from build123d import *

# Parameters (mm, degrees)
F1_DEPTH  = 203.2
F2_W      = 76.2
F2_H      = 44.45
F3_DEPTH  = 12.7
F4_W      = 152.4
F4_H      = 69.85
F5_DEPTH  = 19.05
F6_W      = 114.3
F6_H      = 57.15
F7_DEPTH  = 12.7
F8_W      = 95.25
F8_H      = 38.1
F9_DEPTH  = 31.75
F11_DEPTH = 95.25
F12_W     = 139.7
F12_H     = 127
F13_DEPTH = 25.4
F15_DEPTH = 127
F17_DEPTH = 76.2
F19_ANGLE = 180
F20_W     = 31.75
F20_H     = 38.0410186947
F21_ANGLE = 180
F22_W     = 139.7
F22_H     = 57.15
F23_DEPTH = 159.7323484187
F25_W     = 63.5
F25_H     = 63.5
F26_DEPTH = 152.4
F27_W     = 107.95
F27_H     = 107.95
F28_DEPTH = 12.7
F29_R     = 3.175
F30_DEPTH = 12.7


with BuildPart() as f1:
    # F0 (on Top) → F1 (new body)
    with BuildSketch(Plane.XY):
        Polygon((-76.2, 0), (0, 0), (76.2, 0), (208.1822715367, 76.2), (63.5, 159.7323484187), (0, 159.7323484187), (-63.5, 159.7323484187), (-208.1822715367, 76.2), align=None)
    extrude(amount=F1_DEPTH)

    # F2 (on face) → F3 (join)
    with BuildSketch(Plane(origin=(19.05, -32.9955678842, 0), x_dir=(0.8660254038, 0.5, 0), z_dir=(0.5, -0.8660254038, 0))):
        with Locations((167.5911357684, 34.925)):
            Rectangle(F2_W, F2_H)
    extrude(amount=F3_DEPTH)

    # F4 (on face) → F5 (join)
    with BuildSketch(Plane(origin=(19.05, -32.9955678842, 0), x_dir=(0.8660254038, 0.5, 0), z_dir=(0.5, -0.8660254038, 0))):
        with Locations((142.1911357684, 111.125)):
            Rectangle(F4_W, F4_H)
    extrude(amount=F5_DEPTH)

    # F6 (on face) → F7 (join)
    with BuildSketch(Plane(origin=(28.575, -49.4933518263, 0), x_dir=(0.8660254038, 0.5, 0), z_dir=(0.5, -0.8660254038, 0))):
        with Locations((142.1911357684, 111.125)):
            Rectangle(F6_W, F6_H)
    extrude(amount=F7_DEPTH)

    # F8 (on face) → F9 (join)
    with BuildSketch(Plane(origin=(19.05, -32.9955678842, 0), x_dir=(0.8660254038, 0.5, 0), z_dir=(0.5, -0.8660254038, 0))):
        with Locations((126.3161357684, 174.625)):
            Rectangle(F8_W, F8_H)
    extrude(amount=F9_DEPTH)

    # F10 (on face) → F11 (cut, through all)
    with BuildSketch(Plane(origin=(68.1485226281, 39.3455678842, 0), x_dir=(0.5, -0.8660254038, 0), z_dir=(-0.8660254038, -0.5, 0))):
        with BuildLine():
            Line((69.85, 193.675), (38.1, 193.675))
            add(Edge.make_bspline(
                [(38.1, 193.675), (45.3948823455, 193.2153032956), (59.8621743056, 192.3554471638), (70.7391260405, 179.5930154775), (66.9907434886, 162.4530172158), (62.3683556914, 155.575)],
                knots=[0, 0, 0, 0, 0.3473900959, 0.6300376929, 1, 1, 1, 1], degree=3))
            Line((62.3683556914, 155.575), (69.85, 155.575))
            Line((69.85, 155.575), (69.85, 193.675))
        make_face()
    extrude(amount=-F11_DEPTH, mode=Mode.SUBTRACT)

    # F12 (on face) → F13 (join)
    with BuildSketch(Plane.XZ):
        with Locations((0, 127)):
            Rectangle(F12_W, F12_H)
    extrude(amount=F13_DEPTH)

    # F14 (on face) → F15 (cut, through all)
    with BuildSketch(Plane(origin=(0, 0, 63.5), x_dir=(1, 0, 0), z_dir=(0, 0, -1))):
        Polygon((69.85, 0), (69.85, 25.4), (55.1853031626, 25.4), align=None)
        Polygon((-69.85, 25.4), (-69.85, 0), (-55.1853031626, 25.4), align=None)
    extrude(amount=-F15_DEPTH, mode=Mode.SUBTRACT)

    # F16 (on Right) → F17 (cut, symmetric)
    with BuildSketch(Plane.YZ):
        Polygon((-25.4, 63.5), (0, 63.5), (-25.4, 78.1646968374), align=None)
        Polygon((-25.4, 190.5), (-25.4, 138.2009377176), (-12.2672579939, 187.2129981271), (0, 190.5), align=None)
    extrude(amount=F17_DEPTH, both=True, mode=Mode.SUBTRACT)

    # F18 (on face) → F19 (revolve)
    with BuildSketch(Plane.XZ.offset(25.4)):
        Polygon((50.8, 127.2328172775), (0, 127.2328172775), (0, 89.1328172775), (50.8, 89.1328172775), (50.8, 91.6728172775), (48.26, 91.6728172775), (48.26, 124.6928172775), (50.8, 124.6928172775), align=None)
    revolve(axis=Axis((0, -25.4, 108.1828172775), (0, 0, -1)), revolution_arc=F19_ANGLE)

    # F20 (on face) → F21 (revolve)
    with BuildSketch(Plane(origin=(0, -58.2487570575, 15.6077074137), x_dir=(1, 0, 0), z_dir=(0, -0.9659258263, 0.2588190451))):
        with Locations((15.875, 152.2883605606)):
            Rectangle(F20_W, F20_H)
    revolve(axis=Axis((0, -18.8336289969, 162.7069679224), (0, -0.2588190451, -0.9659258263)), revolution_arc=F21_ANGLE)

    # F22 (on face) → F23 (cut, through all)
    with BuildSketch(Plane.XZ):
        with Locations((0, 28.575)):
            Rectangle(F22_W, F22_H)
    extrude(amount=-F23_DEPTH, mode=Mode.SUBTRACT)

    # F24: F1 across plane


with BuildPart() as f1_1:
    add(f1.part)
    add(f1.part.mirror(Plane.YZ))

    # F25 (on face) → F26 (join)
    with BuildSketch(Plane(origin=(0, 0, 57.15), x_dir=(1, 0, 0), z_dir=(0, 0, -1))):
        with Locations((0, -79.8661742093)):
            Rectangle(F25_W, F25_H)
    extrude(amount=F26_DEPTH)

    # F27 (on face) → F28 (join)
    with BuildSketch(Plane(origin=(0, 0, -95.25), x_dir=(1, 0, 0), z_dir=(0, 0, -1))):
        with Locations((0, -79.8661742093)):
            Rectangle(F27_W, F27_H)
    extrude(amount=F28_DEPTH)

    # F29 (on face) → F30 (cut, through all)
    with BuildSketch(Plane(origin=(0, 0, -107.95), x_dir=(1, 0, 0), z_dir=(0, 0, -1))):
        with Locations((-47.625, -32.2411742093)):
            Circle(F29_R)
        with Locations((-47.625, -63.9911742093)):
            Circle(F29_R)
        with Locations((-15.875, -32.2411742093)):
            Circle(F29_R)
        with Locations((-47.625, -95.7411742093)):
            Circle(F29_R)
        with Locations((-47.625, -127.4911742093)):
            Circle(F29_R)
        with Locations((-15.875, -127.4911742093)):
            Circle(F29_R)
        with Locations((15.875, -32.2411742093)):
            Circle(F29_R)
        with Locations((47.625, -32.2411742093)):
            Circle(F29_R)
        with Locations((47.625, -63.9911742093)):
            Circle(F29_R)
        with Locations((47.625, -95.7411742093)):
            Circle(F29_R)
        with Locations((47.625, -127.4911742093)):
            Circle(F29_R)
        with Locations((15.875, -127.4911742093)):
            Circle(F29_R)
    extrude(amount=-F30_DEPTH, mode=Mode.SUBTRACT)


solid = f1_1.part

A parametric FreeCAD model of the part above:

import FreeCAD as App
import Part
import Sketcher

V = App.Vector
Q = App.Units.Quantity


def add_polygon(sketch, points):
    """Adds a closed chain of lines whose ends are joined by coincident constraints."""
    first, n = sketch.GeometryCount, len(points)
    for a, b in zip(points, points[1:] + points[:1]):
        sketch.addGeometry(Part.LineSegment(App.Vector(*a, 0), App.Vector(*b, 0)), False)
    for i in range(n):
        sketch.addConstraint(Sketcher.Constraint("Coincident", first + i, 2, first + (i + 1) % n, 1))

doc = App.newDocument("Part")
body = doc.addObject("PartDesign::Body", "Body")

# Sketch on XY plane
sketch1 = doc.addObject("Sketcher::SketchObject", "Sketch")
body.addObject(sketch1)
sketch1.AttachmentSupport = (doc.XY_Plane, [""])
sketch1.MapMode = "FlatFace"
add_polygon(sketch1, [(-76, 0), (76, 0), (208, 76), (64, 160), (-64, 160), (-208, 76)])  # lines 0-5
sketch1.addConstraint([
    Sketcher.Constraint("Horizontal", 0),
    Sketcher.Constraint("Horizontal", 3),
    Sketcher.Constraint("Symmetric", 0, 2, 5, 2, -1, 1),
    Sketcher.Constraint("Symmetric", 1, 2, 4, 2, -2),
    Sketcher.Constraint("Parallel", 1, 4),
    Sketcher.Constraint("Parallel", 2, 5),
    Sketcher.Constraint("DistanceX", 0, 1, 0, 2, Q("6 in")),
    Sketcher.Constraint("DistanceX", 3, 2, 3, 1, Q("5 in")),
    Sketcher.Constraint("Distance", 1, Q("6 in")),
    Sketcher.Constraint("DistanceY", -1, 1, 1, 2, Q("3 in")),
])
pad1 = doc.addObject("PartDesign::Pad", "Pad")
body.addObject(pad1)
pad1.Profile = sketch1
pad1.Length = Q("8 in")

# Sketch on an angled plane
sketch2 = doc.addObject("Sketcher::SketchObject", "Sketch001")
body.addObject(sketch2)
sketch2.Placement = App.Placement(V(19.05, -32.995568, 0), App.Rotation(V(0.866025404, 0.5, 0), V(0, 0, 1), V(0.5, -0.866025404, 0), "ZXY"))
add_polygon(sketch2, [(129, 57), (129, 13), (206, 13), (206, 57)])  # lines 0-3
sketch2.addConstraint([
    Sketcher.Constraint("Vertical", 0),
    Sketcher.Constraint("Horizontal", 1),
    Sketcher.Constraint("Vertical", 2),
    Sketcher.Constraint("Horizontal", 3),
    Sketcher.Constraint("DistanceX", 1, 1, 1, 2, Q("3 in")),
    Sketcher.Constraint("DistanceY", 0, 2, 0, 1, Q("1.75 in")),
    Sketcher.Constraint("DistanceY", -1, 1, 0, 2, Q("0.5 in")),
    Sketcher.Constraint("DistanceX", -1, 1, 0, 2, Q("129.491136 mm")),
])
pad2 = doc.addObject("PartDesign::Pad", "Pad001")
body.addObject(pad2)
pad2.Profile = sketch2
pad2.Length = Q("0.5 in")

# Sketch on an angled plane
sketch3 = doc.addObject("Sketcher::SketchObject", "Sketch002")
body.addObject(sketch3)
sketch3.Placement = App.Placement(V(19.05, -32.995568, 0), App.Rotation(V(0.866025404, 0.5, 0), V(0, 0, 1), V(0.5, -0.866025404, 0), "ZXY"))
add_polygon(sketch3, [(66, 146), (66, 76), (218, 76), (218, 146)])  # lines 0-3
sketch3.addConstraint([
    Sketcher.Constraint("Vertical", 0),
    Sketcher.Constraint("Horizontal", 1),
    Sketcher.Constraint("Vertical", 2),
    Sketcher.Constraint("Horizontal", 3),
    Sketcher.Constraint("DistanceX", 1, 1, 1, 2, Q("6 in")),
    Sketcher.Constraint("DistanceY", -1, 1, 0, 2, Q("3 in")),
    Sketcher.Constraint("DistanceY", 0, 2, 0, 1, Q("2.75 in")),
    Sketcher.Constraint("DistanceX", -1, 1, 0, 2, Q("65.991136 mm")),
])
pad3 = doc.addObject("PartDesign::Pad", "Pad002")
body.addObject(pad3)
pad3.Profile = sketch3
pad3.Length = Q("0.75 in")

# Sketch on an angled plane
sketch4 = doc.addObject("Sketcher::SketchObject", "Sketch003")
body.addObject(sketch4)
sketch4.Placement = App.Placement(V(28.575, -49.493352, 0), App.Rotation(V(0.866025404, 0.5, 0), V(0, 0, 1), V(0.5, -0.866025404, 0), "ZXY"))
add_polygon(sketch4, [(85, 140), (85, 83), (199, 83), (199, 140)])  # lines 0-3
sketch4.addConstraint([
    Sketcher.Constraint("Vertical", 0),
    Sketcher.Constraint("Horizontal", 1),
    Sketcher.Constraint("Vertical", 2),
    Sketcher.Constraint("Horizontal", 3),
    Sketcher.Constraint("DistanceX", 1, 1, 1, 2, Q("4.5 in")),
    Sketcher.Constraint("DistanceY", 0, 2, 0, 1, Q("2.25 in")),
    Sketcher.Constraint("DistanceY", -1, 1, 2, 2, Q("5.5 in")),
    Sketcher.Constraint("DistanceX", -1, 1, 0, 2, Q("85.041136 mm")),
])
pad4 = doc.addObject("PartDesign::Pad", "Pad003")
body.addObject(pad4)
pad4.Profile = sketch4
pad4.Length = Q("0.5 in")

# Sketch on an angled plane
sketch5 = doc.addObject("Sketcher::SketchObject", "Sketch004")
body.addObject(sketch5)
sketch5.Placement = App.Placement(V(19.05, -32.995568, 0), App.Rotation(V(0.866025404, 0.5, 0), V(0, 0, 1), V(0.5, -0.866025404, 0), "ZXY"))
add_polygon(sketch5, [(79, 194), (79, 156), (174, 156), (174, 194)])  # lines 0-3
sketch5.addConstraint([
    Sketcher.Constraint("Vertical", 0),
    Sketcher.Constraint("Horizontal", 1),
    Sketcher.Constraint("Vertical", 2),
    Sketcher.Constraint("Horizontal", 3),
    Sketcher.Constraint("DistanceY", 0, 2, 0, 1, Q("1.5 in")),
    Sketcher.Constraint("DistanceX", 1, 1, 1, 2, Q("3.75 in")),
    Sketcher.Constraint("DistanceY", -1, 1, 0, 2, Q("6.125 in")),
    Sketcher.Constraint("DistanceX", -1, 1, 0, 2, Q("78.691136 mm")),
])
pad5 = doc.addObject("PartDesign::Pad", "Pad004")
body.addObject(pad5)
pad5.Profile = sketch5
pad5.Length = Q("1.25 in")

# Sketch on an angled plane
sketch6 = doc.addObject("Sketcher::SketchObject", "Sketch005")
body.addObject(sketch6)
sketch6.Placement = App.Placement(V(68.148523, 39.345568, 0), App.Rotation(V(0.5, -0.866025404, 0), V(0, 0, 1), V(-0.866025404, -0.5, 0), "ZXY"))
sketch6.addGeometry([
    Part.LineSegment(V(69.85, 193.675, 0), V(38.1, 193.675, 0)),
    Part.BSplineCurve([V(38.1, 193.675, 0), V(45.394882, 193.215303, 0), V(59.862174, 192.355447, 0), V(70.739126, 179.593016, 0), V(66.990744, 162.453017, 0), V(62.368356, 155.575, 0)], [4, 1, 1, 4], [0, 0.347390096, 0.630037693, 1], False, 3, [1, 1, 1, 1, 1, 1], False),
    Part.LineSegment(V(62.368356, 155.575, 0), V(69.85, 155.575, 0)),
    Part.LineSegment(V(69.85, 155.575, 0), V(69.85, 193.675, 0)),
], False)
sketch6.addConstraint([
    Sketcher.Constraint("Block", 1),
    Sketcher.Constraint("Coincident", 0, 2, 1, 1),
    Sketcher.Constraint("Coincident", 1, 2, 2, 1),
    Sketcher.Constraint("Coincident", 2, 2, 3, 1),
    Sketcher.Constraint("Coincident", 3, 2, 0, 1),
    Sketcher.Constraint("Horizontal", 0),
    Sketcher.Constraint("Horizontal", 2),
    Sketcher.Constraint("Vertical", 3),
    Sketcher.Constraint("DistanceX", 0, 2, 0, 1, Q("1.25 in")),
])
pocket1 = doc.addObject("PartDesign::Pocket", "Pocket")
body.addObject(pocket1)
pocket1.Profile = sketch6
pocket1.Type = "ThroughAll"

# Sketch on XZ plane
sketch7 = doc.addObject("Sketcher::SketchObject", "Sketch006")
body.addObject(sketch7)
sketch7.AttachmentSupport = (doc.XZ_Plane, [""])
sketch7.MapMode = "FlatFace"
add_polygon(sketch7, [(-70, 190), (-70, 64), (70, 64), (70, 190)])  # lines 0-3
sketch7.addConstraint([
    Sketcher.Constraint("Vertical", 0),
    Sketcher.Constraint("Horizontal", 1),
    Sketcher.Constraint("Vertical", 2),
    Sketcher.Constraint("Horizontal", 3),
    Sketcher.Constraint("DistanceY", 0, 2, 0, 1, Q("5 in")),
    Sketcher.Constraint("DistanceX", 1, 1, 1, 2, Q("5.5 in")),
    Sketcher.Constraint("DistanceY", -1, 1, 0, 2, Q("2.5 in")),
    Sketcher.Constraint("DistanceX", 0, 2, -1, 1, Q("2.75 in")),
])
pad6 = doc.addObject("PartDesign::Pad", "Pad005")
body.addObject(pad6)
pad6.Profile = sketch7
pad6.Length = Q("1 in")

# Sketch on XY plane
sketch8 = doc.addObject("Sketcher::SketchObject", "Sketch007")
body.addObject(sketch8)
sketch8.AttachmentSupport = (doc.XY_Plane, [""])
sketch8.MapMode = "FlatFace"
sketch8.AttachmentOffset = App.Placement(V(0, 0, 2.5 * 25.4), App.Rotation())
add_polygon(sketch8, [(70, 0), (70, -25), (55, -25)])  # lines 0-2
add_polygon(sketch8, [(-70, -25), (-70, 0), (-55, -25)])  # lines 3-5
sketch8.addConstraint([
    Sketcher.Constraint("Vertical", 0),
    Sketcher.Constraint("Horizontal", 1),
    Sketcher.Constraint("Vertical", 3),
    Sketcher.Constraint("Horizontal", 5),
    Sketcher.Constraint("Symmetric", 2, 2, 3, 2, -1, 1),
    Sketcher.Constraint("Symmetric", 1, 2, 4, 2, -2),
    Sketcher.Constraint("PointOnObject", 2, 2, -1),
    Sketcher.Constraint("DistanceY", 0, 2, 0, 1, Q("1 in")),
    Sketcher.Constraint("Angle", 2, Q("60 deg")),
    Sketcher.Constraint("DistanceX", 3, 2, 2, 2, Q("5.5 in")),
])
pocket2 = doc.addObject("PartDesign::Pocket", "Pocket001")
body.addObject(pocket2)
pocket2.Profile = sketch8
pocket2.Type = "ThroughAll"
pocket2.Reversed = True

# Sketch on YZ plane
sketch9 = doc.addObject("Sketcher::SketchObject", "Sketch008")
body.addObject(sketch9)
sketch9.AttachmentSupport = (doc.YZ_Plane, [""])
sketch9.MapMode = "FlatFace"
add_polygon(sketch9, [(-25, 64), (0, 64), (-25, 78)])  # lines 0-2
add_polygon(sketch9, [(-25, 190), (-25, 138), (-12, 187), (0, 190)])  # lines 3-6
sketch9.addConstraint([
    Sketcher.Constraint("Horizontal", 0),
    Sketcher.Constraint("Vertical", 2),
    Sketcher.Constraint("Vertical", 3),
    Sketcher.Constraint("Horizontal", 6),
    Sketcher.Constraint("PointOnObject", 0, 2, -2),
    Sketcher.Constraint("PointOnObject", 5, 2, -2),
    Sketcher.Constraint("Vertical", 2, 2, 3, 2),
    Sketcher.Constraint("DistanceX", 0, 1, 0, 2, Q("1 in")),
    Sketcher.Constraint("Angle", 1, Q("150 deg")),
    Sketcher.Constraint("Angle", 4, Q("75 deg")),
    Sketcher.Constraint("Angle", 5, Q("15 deg")),
    Sketcher.Constraint("DistanceY", 0, 2, 5, 2, Q("5 in")),
    Sketcher.Constraint("Distance", 5, Q("0.5 in")),
    Sketcher.Constraint("DistanceY", -1, 1, 0, 2, Q("2.5 in")),
])
pocket3 = doc.addObject("PartDesign::Pocket", "Pocket002")
body.addObject(pocket3)
pocket3.Profile = sketch9
pocket3.Length = Q("6 in")
pocket3.Midplane = True

# Sketch on XZ plane
sketch10 = doc.addObject("Sketcher::SketchObject", "Sketch009")
body.addObject(sketch10)
sketch10.AttachmentSupport = (doc.XZ_Plane, [""])
sketch10.MapMode = "FlatFace"
sketch10.AttachmentOffset = App.Placement(V(0, 0, 1 * 25.4), App.Rotation())
add_polygon(sketch10, [(50.8, 127.2), (0, 127.2), (0, 89.1), (50.8, 89.1), (50.8, 91.7), (48.3, 91.7), (48.3, 124.7), (50.8, 124.7)])  # lines 0-7
sketch10.addConstraint([
    Sketcher.Constraint("Horizontal", 0),
    Sketcher.Constraint("Vertical", 1),
    Sketcher.Constraint("Horizontal", 2),
    Sketcher.Constraint("Vertical", 3),
    Sketcher.Constraint("Horizontal", 4),
    Sketcher.Constraint("Vertical", 5),
    Sketcher.Constraint("Horizontal", 6),
    Sketcher.Constraint("Vertical", 7),
    Sketcher.Constraint("PointOnObject", 0, 2, -2),
    Sketcher.Constraint("Vertical", 3, 2, 6, 2),
    Sketcher.Constraint("Equal", 6, 3),
    Sketcher.Constraint("Equal", 3, 7),
    Sketcher.Constraint("DistanceX", 0, 2, 0, 1, Q("2 in")),
    Sketcher.Constraint("DistanceX", 4, 2, 4, 1, Q("0.1 in")),
    Sketcher.Constraint("DistanceY", 1, 2, 1, 1, Q("1.5 in")),
    Sketcher.Constraint("DistanceY", -1, 1, 0, 2, Q("127.232817 mm")),
])
revolution = doc.addObject("PartDesign::Revolution", "Revolution")
body.addObject(revolution)
revolution.Profile = sketch10
revolution.ReferenceAxis = (sketch10, ["V_Axis"])
revolution.Angle = 180
revolution.Reversed = True

# Sketch on an angled plane
sketch11 = doc.addObject("Sketcher::SketchObject", "Sketch010")
body.addObject(sketch11)
sketch11.Placement = App.Placement(V(0, -58.248757, 15.607707), App.Rotation(V(1, 0, 0), V(0, 0.258819045, 0.965925826), V(0, -0.965925826, 0.258819045), "ZXY"))
add_polygon(sketch11, [(0, 171), (0, 133), (32, 133), (32, 171)])  # lines 0-3
sketch11.addConstraint([
    Sketcher.Constraint("Vertical", 0),
    Sketcher.Constraint("Horizontal", 1),
    Sketcher.Constraint("Vertical", 2),
    Sketcher.Constraint("Horizontal", 3),
    Sketcher.Constraint("PointOnObject", 0, 2, -2),
    Sketcher.Constraint("DistanceX", 1, 1, 1, 2, Q("1.25 in")),
    Sketcher.Constraint("DistanceY", 0, 2, 0, 1, Q("38.041019 mm")),
    Sketcher.Constraint("DistanceY", -1, 1, 0, 2, Q("133.267851 mm")),
])
revolution2 = doc.addObject("PartDesign::Revolution", "Revolution001")
body.addObject(revolution2)
revolution2.Profile = sketch11
revolution2.ReferenceAxis = (sketch11, ["V_Axis"])
revolution2.Angle = 180
revolution2.Reversed = True

# Sketch on XZ plane
sketch12 = doc.addObject("Sketcher::SketchObject", "Sketch011")
body.addObject(sketch12)
sketch12.AttachmentSupport = (doc.XZ_Plane, [""])
sketch12.MapMode = "FlatFace"
add_polygon(sketch12, [(-70, 57), (-70, 0), (70, 0), (70, 57)])  # lines 0-3
sketch12.addConstraint([
    Sketcher.Constraint("Vertical", 0),
    Sketcher.Constraint("Horizontal", 1),
    Sketcher.Constraint("Vertical", 2),
    Sketcher.Constraint("Horizontal", 3),
    Sketcher.Constraint("Symmetric", 0, 2, 1, 2, -1, 1),
    Sketcher.Constraint("DistanceX", 1, 1, 1, 2, Q("5.5 in")),
    Sketcher.Constraint("DistanceY", 0, 2, 0, 1, Q("2.25 in")),
])
pocket4 = doc.addObject("PartDesign::Pocket", "Pocket003")
body.addObject(pocket4)
pocket4.Profile = sketch12
pocket4.Type = "ThroughAll"
body2 = doc.addObject("PartDesign::Body", "Body001")
doc.recompute()

body2.BaseFeature = body
doc.recompute()

mirroring = doc.addObject("Part::Mirroring", "Mirroring")
mirroring.Source = body
mirroring.Base = V(0, 0, 0)
mirroring.Normal = V(1, 0, 0)
body3 = doc.addObject("PartDesign::Body", "Body002")
body3.BaseFeature = mirroring
boolean = doc.addObject("PartDesign::Boolean", "Boolean")
body2.addObject(boolean)
boolean.Type = "Fuse"
boolean.addObjects([body3])
doc.recompute()

# Sketch on XY plane
sketch13 = doc.addObject("Sketcher::SketchObject", "Sketch012")
body2.addObject(sketch13)
sketch13.AttachmentSupport = (doc.getObject("XY_Plane001"), [""])
sketch13.MapMode = "FlatFace"
sketch13.AttachmentOffset = App.Placement(V(0, 0, 2.25 * 25.4), App.Rotation())
add_polygon(sketch13, [(-32, 48), (-32, 112), (32, 112), (32, 48)])  # lines 0-3
sketch13.addConstraint([
    Sketcher.Constraint("Vertical", 0),
    Sketcher.Constraint("Horizontal", 1),
    Sketcher.Constraint("Vertical", 2),
    Sketcher.Constraint("Horizontal", 3),
    Sketcher.Constraint("Equal", 3, 0),
    Sketcher.Constraint("DistanceX", 1, 1, 1, 2, Q("2.5 in")),
    Sketcher.Constraint("DistanceX", 0, 2, -1, 1, Q("1.25 in")),
    Sketcher.Constraint("DistanceY", -1, 1, 0, 2, Q("111.616174 mm")),
])
pad7 = doc.addObject("PartDesign::Pad", "Pad006")
body2.addObject(pad7)
pad7.Profile = sketch13
pad7.Length = Q("6 in")
pad7.Reversed = True

# Sketch on XY plane
sketch14 = doc.addObject("Sketcher::SketchObject", "Sketch013")
body2.addObject(sketch14)
sketch14.AttachmentSupport = (doc.getObject("XY_Plane001"), [""])
sketch14.MapMode = "FlatFace"
sketch14.AttachmentOffset = App.Placement(V(0, 0, -3.75 * 25.4), App.Rotation())
add_polygon(sketch14, [(-54, 26), (-54, 134), (54, 134), (54, 26)])  # lines 0-3
sketch14.addConstraint([
    Sketcher.Constraint("Vertical", 0),
    Sketcher.Constraint("Horizontal", 1),
    Sketcher.Constraint("Vertical", 2),
    Sketcher.Constraint("Horizontal", 3),
    Sketcher.Constraint("Equal", 3, 0),
    Sketcher.Constraint("DistanceX", 1, 1, 1, 2, Q("4.25 in")),
    Sketcher.Constraint("DistanceX", 0, 2, -1, 1, Q("2.125 in")),
    Sketcher.Constraint("DistanceY", -1, 1, 0, 2, Q("133.841174 mm")),
])
pad8 = doc.addObject("PartDesign::Pad", "Pad007")
body2.addObject(pad8)
pad8.Profile = sketch14
pad8.Length = Q("0.5 in")
pad8.Reversed = True

# Sketch on XY plane
sketch15 = doc.addObject("Sketcher::SketchObject", "Sketch014")
body2.addObject(sketch15)
sketch15.AttachmentSupport = (doc.getObject("XY_Plane001"), [""])
sketch15.MapMode = "FlatFace"
sketch15.AttachmentOffset = App.Placement(V(0, 0, -4.25 * 25.4), App.Rotation())
sketch15.addGeometry([
    Part.Circle(V(-47.6, 32.2, 0), V(0, 0, 1), 3.2),  # 0
    Part.Circle(V(-47.6, 64, 0), V(0, 0, 1), 3.2),  # 1
    Part.Circle(V(-15.9, 32.2, 0), V(0, 0, 1), 3.2),  # 2
    Part.Circle(V(-47.6, 95.7, 0), V(0, 0, 1), 3.2),  # 3
    Part.Circle(V(-47.6, 127.5, 0), V(0, 0, 1), 3.2),  # 4
    Part.Circle(V(-15.9, 127.5, 0), V(0, 0, 1), 3.2),  # 5
    Part.Circle(V(15.9, 32.2, 0), V(0, 0, 1), 3.2),  # 6
    Part.Circle(V(47.6, 32.2, 0), V(0, 0, 1), 3.2),  # 7
    Part.Circle(V(47.6, 64, 0), V(0, 0, 1), 3.2),  # 8
    Part.Circle(V(47.6, 95.7, 0), V(0, 0, 1), 3.2),  # 9
    Part.Circle(V(47.6, 127.5, 0), V(0, 0, 1), 3.2),  # 10
    Part.Circle(V(15.9, 127.5, 0), V(0, 0, 1), 3.2),  # 11
], False)
sketch15.addConstraint([
    Sketcher.Constraint("Equal", 0, 1),
    Sketcher.Constraint("Equal", 1, 2),
    Sketcher.Constraint("Equal", 2, 3),
    Sketcher.Constraint("Equal", 3, 4),
    Sketcher.Constraint("Equal", 4, 5),
    Sketcher.Constraint("Equal", 5, 6),
    Sketcher.Constraint("Equal", 6, 7),
    Sketcher.Constraint("Equal", 7, 8),
    Sketcher.Constraint("Equal", 8, 9),
    Sketcher.Constraint("Equal", 9, 10),
    Sketcher.Constraint("Equal", 10, 11),
    Sketcher.Constraint("Symmetric", 2, 3, 6, 3, -2),
    Sketcher.Constraint("Symmetric", 0, 3, 7, 3, -2),
    Sketcher.Constraint("Symmetric", 1, 3, 8, 3, -2),
    Sketcher.Constraint("Symmetric", 3, 3, 9, 3, -2),
    Sketcher.Constraint("Symmetric", 4, 3, 10, 3, -2),
    Sketcher.Constraint("Symmetric", 5, 3, 11, 3, -2),
    Sketcher.Constraint("Horizontal", 0, 3, 2, 3),
    Sketcher.Constraint("Horizontal", 4, 3, 5, 3),
    Sketcher.Constraint("Vertical", 0, 3, 1, 3),
    Sketcher.Constraint("Vertical", 1, 3, 3, 3),
    Sketcher.Constraint("Vertical", 3, 3, 4, 3),
    Sketcher.Constraint("Vertical", 2, 3, 5, 3),
    Sketcher.Constraint("Diameter", 0, Q("0.25 in")),
    Sketcher.Constraint("DistanceY", 0, 3, 3, 3, Q("2.5 in")),
    Sketcher.Constraint("DistanceY", 1, 3, 4, 3, Q("2.5 in")),
    Sketcher.Constraint("DistanceX", 0, 3, 6, 3, Q("2.5 in")),
    Sketcher.Constraint("DistanceY", 0, 3, 1, 3, Q("1.25 in")),
    Sketcher.Constraint("DistanceX", 0, 3, 2, 3, Q("1.25 in")),
    Sketcher.Constraint("DistanceY", -1, 1, 0, 3, Q("32.241174 mm")),
])
pocket5 = doc.addObject("PartDesign::Pocket", "Pocket004")
body2.addObject(pocket5)
pocket5.Profile = sketch15
pocket5.Length = Q("0.5 in")
pocket5.Reversed = True
mirroring.Visibility = False

doc.recompute()
